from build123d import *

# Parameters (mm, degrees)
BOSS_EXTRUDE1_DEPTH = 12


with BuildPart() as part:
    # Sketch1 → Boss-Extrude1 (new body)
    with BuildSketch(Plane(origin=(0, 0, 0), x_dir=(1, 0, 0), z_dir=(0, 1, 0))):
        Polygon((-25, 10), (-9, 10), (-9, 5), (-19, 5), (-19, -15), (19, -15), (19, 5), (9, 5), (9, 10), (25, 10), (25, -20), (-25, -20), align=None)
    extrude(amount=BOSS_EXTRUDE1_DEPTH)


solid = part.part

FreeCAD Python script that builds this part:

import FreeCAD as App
import Part
import Sketcher
from FreeCAD import Vector
Q = App.Units.Quantity

doc = App.newDocument("Part")
body = doc.addObject("PartDesign::Body", "Body")

sketch1 = body.newObject("Sketcher::SketchObject", "Sketch")
sketch1.AttachmentSupport = (doc.getObject("XZ_Plane"), [""])
sketch1.MapMode = "FlatFace"
sketch1.addGeometry([
    Part.LineSegment(Vector(-9, -10, 0), Vector(-25, -10, 0)),
    Part.LineSegment(Vector(-25, -10, 0), Vector(-25, 20, 0)),
    Part.LineSegment(Vector(-25, 20, 0), Vector(25, 20, 0)),
    Part.LineSegment(Vector(25, 20, 0), Vector(25, -10, 0)),
    Part.LineSegment(Vector(25, -10, 0), Vector(9, -10, 0)),
    Part.LineSegment(Vector(9, -10, 0), Vector(9, -5, 0)),
    Part.LineSegment(Vector(9, -5, 0), Vector(19, -5, 0)),
    Part.LineSegment(Vector(19, -5, 0), Vector(19, 15, 0)),
    Part.LineSegment(Vector(19, 15, 0), Vector(-19, 15, 0)),
    Part.LineSegment(Vector(-19, 15, 0), Vector(-19, -5, 0)),
    Part.LineSegment(Vector(-19, -5, 0), Vector(-9, -5, 0)),
    Part.LineSegment(Vector(-9, -5, 0), Vector(-9, -10, 0)),
], False)
sketch1.addConstraint([
    Sketcher.Constraint("Coincident", 0, 2, 1, 1),
    Sketcher.Constraint("Coincident", 1, 2, 2, 1),
    Sketcher.Constraint("Coincident", 2, 2, 3, 1),
    Sketcher.Constraint("Coincident", 3, 2, 4, 1),
    Sketcher.Constraint("Coincident", 4, 2, 5, 1),
    Sketcher.Constraint("Coincident", 5, 2, 6, 1),
    Sketcher.Constraint("Coincident", 6, 2, 7, 1),
    Sketcher.Constraint("Coincident", 7, 2, 8, 1),
    Sketcher.Constraint("Coincident", 8, 2, 9, 1),
    Sketcher.Constraint("Coincident", 9, 2, 10, 1),
    Sketcher.Constraint("Coincident", 10, 2, 11, 1),
    Sketcher.Constraint("Coincident", 11, 2, 0, 1),
    Sketcher.Constraint("Horizontal", 0),
    Sketcher.Constraint("Vertical", 1),
    Sketcher.Constraint("Horizontal", 2),
    Sketcher.Constraint("Vertical", 3),
    Sketcher.Constraint("Horizontal", 4),
    Sketcher.Constraint("Vertical", 5),
    Sketcher.Constraint("Horizontal", 6),
    Sketcher.Constraint("Vertical", 7),
    Sketcher.Constraint("Horizontal", 8),
    Sketcher.Constraint("Vertical", 9),
    Sketcher.Constraint("Horizontal", 10),
    Sketcher.Constraint("Vertical", 11),
    Sketcher.Constraint("Symmetric", 0, 2, 3, 2, -2),
    Sketcher.Constraint("Symmetric", 6, 2, 9, 2, -2),
    Sketcher.Constraint("Equal", 0, 4),
    Sketcher.Constraint("DistanceX", 0, 2, 0, 1, Q("16 mm")),
    Sketcher.Constraint("DistanceX", 2, 1, 2, 2, Q("50 mm")),
    Sketcher.Constraint("DistanceX", 6, 1, 6, 2, Q("10 mm")),
    Sketcher.Constraint("DistanceY", 1, 1, 1, 2, Q("30 mm")),
    Sketcher.Constraint("DistanceY", 5, 1, 5, 2, Q("5 mm")),
    Sketcher.Constraint("DistanceY", 7, 1, 7, 2, Q("20 mm")),
    Sketcher.Constraint("DistanceY", 0, 2, -1, 1, Q("10 mm")),
])
pad1 = body.newObject("PartDesign::Pad", "Pad")
pad1.Profile = sketch1
pad1.Length = 12
pad1.Reversed = True

doc.recompute()
